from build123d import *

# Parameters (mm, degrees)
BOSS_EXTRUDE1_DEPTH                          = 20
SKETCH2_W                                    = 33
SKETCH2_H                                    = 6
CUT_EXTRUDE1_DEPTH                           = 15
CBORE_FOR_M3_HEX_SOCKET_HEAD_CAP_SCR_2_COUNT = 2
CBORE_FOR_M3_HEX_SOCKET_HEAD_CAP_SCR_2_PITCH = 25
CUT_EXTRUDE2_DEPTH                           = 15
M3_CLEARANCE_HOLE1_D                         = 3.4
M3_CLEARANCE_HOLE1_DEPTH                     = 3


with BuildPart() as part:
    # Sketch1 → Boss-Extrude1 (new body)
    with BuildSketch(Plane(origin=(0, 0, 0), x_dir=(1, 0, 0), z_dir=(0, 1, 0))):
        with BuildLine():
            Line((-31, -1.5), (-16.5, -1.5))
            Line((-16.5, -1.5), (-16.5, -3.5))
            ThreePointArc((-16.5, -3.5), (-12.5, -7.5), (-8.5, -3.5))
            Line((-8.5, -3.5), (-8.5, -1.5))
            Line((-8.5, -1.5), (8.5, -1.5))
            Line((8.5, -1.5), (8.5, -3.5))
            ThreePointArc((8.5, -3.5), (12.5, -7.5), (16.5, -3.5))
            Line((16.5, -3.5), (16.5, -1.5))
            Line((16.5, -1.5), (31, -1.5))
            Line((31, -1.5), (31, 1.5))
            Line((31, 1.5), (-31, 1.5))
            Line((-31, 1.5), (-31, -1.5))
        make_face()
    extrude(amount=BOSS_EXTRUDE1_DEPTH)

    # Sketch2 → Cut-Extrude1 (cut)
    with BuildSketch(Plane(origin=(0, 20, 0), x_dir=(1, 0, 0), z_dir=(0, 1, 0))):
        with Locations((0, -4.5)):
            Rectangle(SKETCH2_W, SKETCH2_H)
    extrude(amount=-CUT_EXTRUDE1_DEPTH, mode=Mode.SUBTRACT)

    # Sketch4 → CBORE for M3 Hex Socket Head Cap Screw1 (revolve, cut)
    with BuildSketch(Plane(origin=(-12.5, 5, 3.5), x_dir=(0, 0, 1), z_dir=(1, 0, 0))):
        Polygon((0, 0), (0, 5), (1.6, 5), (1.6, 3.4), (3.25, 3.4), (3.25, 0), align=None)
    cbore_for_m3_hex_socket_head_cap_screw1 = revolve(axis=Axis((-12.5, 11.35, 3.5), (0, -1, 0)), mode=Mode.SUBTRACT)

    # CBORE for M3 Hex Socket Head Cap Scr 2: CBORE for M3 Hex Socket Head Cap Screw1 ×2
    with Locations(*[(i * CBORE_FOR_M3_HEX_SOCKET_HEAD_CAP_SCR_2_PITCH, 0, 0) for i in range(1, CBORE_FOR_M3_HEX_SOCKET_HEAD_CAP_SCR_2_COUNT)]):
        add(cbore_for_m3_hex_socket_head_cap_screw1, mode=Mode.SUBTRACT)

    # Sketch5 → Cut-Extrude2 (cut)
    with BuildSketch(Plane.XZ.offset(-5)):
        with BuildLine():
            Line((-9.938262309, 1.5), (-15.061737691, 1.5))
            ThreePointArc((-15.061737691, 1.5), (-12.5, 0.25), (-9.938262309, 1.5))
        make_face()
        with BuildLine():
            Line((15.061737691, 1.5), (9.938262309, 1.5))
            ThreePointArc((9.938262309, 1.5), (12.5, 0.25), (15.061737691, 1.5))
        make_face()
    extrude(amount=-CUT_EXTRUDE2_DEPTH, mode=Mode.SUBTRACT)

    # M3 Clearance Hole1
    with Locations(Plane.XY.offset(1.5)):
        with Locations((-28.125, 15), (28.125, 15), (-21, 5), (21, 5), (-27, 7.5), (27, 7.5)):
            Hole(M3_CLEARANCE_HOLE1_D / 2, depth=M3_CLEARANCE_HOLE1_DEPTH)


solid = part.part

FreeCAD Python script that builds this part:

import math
import FreeCAD as App
import Part
import Sketcher

V = App.Vector
Q = App.Units.Quantity

doc = App.newDocument("Part")
body = doc.addObject("PartDesign::Body", "Body")

sketch1 = body.newObject("Sketcher::SketchObject", "Sketch")
sketch1.AttachmentSupport = (doc.getObject("XZ_Plane"), [""])
sketch1.MapMode = "FlatFace"
sketch1.addGeometry([
    Part.LineSegment(V(-31, 1.5, 0), V(-16.5, 1.5, 0)),
    Part.LineSegment(V(-16.5, 1.5, 0), V(-16.5, 3.5, 0)),
    Part.ArcOfCircle(Part.Circle(V(-12.5, 3.5, 0), V(0, 0, 1), 4), math.radians(0), math.radians(180)),
    Part.LineSegment(V(-8.5, 3.5, 0), V(-8.5, 1.5, 0)),
    Part.LineSegment(V(-8.5, 1.5, 0), V(8.5, 1.5, 0)),
    Part.LineSegment(V(8.5, 1.5, 0), V(8.5, 3.5, 0)),
    Part.ArcOfCircle(Part.Circle(V(12.5, 3.5, 0), V(0, 0, 1), 4), math.radians(0), math.radians(180)),
    Part.LineSegment(V(16.5, 3.5, 0), V(16.5, 1.5, 0)),
    Part.LineSegment(V(16.5, 1.5, 0), V(31, 1.5, 0)),
    Part.LineSegment(V(31, 1.5, 0), V(31, -1.5, 0)),
    Part.LineSegment(V(31, -1.5, 0), V(-31, -1.5, 0)),
    Part.LineSegment(V(-31, -1.5, 0), V(-31, 1.5, 0)),
], False)
sketch1.addConstraint([
    Sketcher.Constraint("Coincident", 0, 2, 1, 1),
    Sketcher.Constraint("Tangent", 1, 2, 2, 2),
    Sketcher.Constraint("Tangent", 2, 1, 3, 1),
    Sketcher.Constraint("Coincident", 3, 2, 4, 1),
    Sketcher.Constraint("Coincident", 4, 2, 5, 1),
    Sketcher.Constraint("Tangent", 5, 2, 6, 2),
    Sketcher.Constraint("Tangent", 6, 1, 7, 1),
    Sketcher.Constraint("Coincident", 7, 2, 8, 1),
    Sketcher.Constraint("Coincident", 8, 2, 9, 1),
    Sketcher.Constraint("Coincident", 9, 2, 10, 1),
    Sketcher.Constraint("Coincident", 10, 2, 11, 1),
    Sketcher.Constraint("Coincident", 11, 2, 0, 1),
    Sketcher.Constraint("Horizontal", 0),
    Sketcher.Constraint("Vertical", 1),
    Sketcher.Constraint("Vertical", 3),
    Sketcher.Constraint("Horizontal", 4),
    Sketcher.Constraint("Vertical", 5),
    Sketcher.Constraint("Vertical", 7),
    Sketcher.Constraint("Horizontal", 8),
    Sketcher.Constraint("Vertical", 9),
    Sketcher.Constraint("Horizontal", 10),
    Sketcher.Constraint("Vertical", 11),
    Sketcher.Constraint("Equal", 2, 6),
    Sketcher.Constraint("Symmetric", 8, 2, 10, 2, -1, 1),
    Sketcher.Constraint("Symmetric", 2, 3, 6, 3, -2),
    Sketcher.Constraint("Horizontal", 0, 2, 3, 2),
    Sketcher.Constraint("Horizontal", 4, 2, 7, 2),
    Sketcher.Constraint("Radius", 2, Q("4 mm")),
    Sketcher.Constraint("DistanceX", 4, 1, 4, 2, Q("17 mm")),
    Sketcher.Constraint("DistanceX", 10, 2, 10, 1, Q("62 mm")),
    Sketcher.Constraint("DistanceY", 1, 1, 1, 2, Q("2 mm")),
    Sketcher.Constraint("DistanceY", 9, 2, 9, 1, Q("3 mm")),
])
pad1 = body.newObject("PartDesign::Pad", "Pad")
pad1.Profile = sketch1
pad1.Length = 20
pad1.Reversed = True

sketch2 = body.newObject("Sketcher::SketchObject", "Sketch001")
sketch2.AttachmentSupport = (doc.getObject("XZ_Plane"), [""])
sketch2.MapMode = "FlatFace"
sketch2.AttachmentOffset = App.Placement(V(0, 0, -20), App.Rotation())
sketch2.addGeometry([
    Part.LineSegment(V(-16, 2, 0), V(-16, 8, 0)),
    Part.LineSegment(V(-16, 8, 0), V(16, 8, 0)),
    Part.LineSegment(V(16, 8, 0), V(16, 2, 0)),
    Part.LineSegment(V(16, 2, 0), V(-16, 2, 0)),
], False)
sketch2.addConstraint([
    Sketcher.Constraint("Coincident", 0, 2, 1, 1),
    Sketcher.Constraint("Coincident", 1, 2, 2, 1),
    Sketcher.Constraint("Coincident", 2, 2, 3, 1),
    Sketcher.Constraint("Coincident", 3, 2, 0, 1),
    Sketcher.Constraint("Vertical", 0),
    Sketcher.Constraint("Horizontal", 1),
    Sketcher.Constraint("Vertical", 2),
    Sketcher.Constraint("Horizontal", 3),
    Sketcher.Constraint("DistanceX", 1, 1, 1, 2, Q("33 mm")),
    Sketcher.Constraint("DistanceY", 0, 1, 0, 2, Q("6 mm")),
    Sketcher.Constraint("DistanceX", 0, 2, -1, 1, Q("16.5 mm")),
    Sketcher.Constraint("DistanceY", -1, 1, 0, 2, Q("7.5 mm")),
])
pocket1 = body.newObject("PartDesign::Pocket", "Pocket")
pocket1.Profile = sketch2
pocket1.Length = 15
pocket1.Reversed = True

sketch3 = body.newObject("Sketcher::SketchObject", "Sketch002")
sketch3.AttachmentSupport = (doc.getObject("YZ_Plane"), [""])
sketch3.MapMode = "FlatFace"
sketch3.AttachmentOffset = App.Placement(V(0, 0, -12.5), App.Rotation())
sketch3.addGeometry([
    Part.LineSegment(V(0, 3.5, 0), V(5, 3.5, 0)),
    Part.LineSegment(V(5, 3.5, 0), V(5, 6.8, 0)),
    Part.LineSegment(V(5, 6.8, 0), V(1.6, 6.8, 0)),
    Part.LineSegment(V(1.6, 6.8, 0), V(1.6, 5.1, 0)),
    Part.LineSegment(V(1.6, 5.1, 0), V(0, 5.1, 0)),
    Part.LineSegment(V(0, 5.1, 0), V(0, 3.5, 0)),
], False)
sketch3.addGeometry(Part.LineSegment(V(5, 3.5, 0), V(0, 3.5, 0)), True)
sketch3.addConstraint([
    Sketcher.Constraint("Coincident", 0, 2, 1, 1),
    Sketcher.Constraint("Coincident", 1, 2, 2, 1),
    Sketcher.Constraint("Coincident", 2, 2, 3, 1),
    Sketcher.Constraint("Coincident", 3, 2, 4, 1),
    Sketcher.Constraint("Coincident", 4, 2, 5, 1),
    Sketcher.Constraint("Coincident", 5, 2, 0, 1),
    Sketcher.Constraint("Horizontal", 0),
    Sketcher.Constraint("Vertical", 1),
    Sketcher.Constraint("Horizontal", 2),
    Sketcher.Constraint("Vertical", 3),
    Sketcher.Constraint("Horizontal", 4),
    Sketcher.Constraint("Vertical", 5),
    Sketcher.Constraint("Horizontal", 6),
    Sketcher.Constraint("Coincident", 6, 1, 0, 2),
    Sketcher.Constraint("PointOnObject", 4, 2, -2),
    Sketcher.Constraint("PointOnObject", 6, 2, -2),
    Sketcher.Constraint("Equal", 4, 5),
    Sketcher.Constraint("DistanceX", 0, 1, 0, 2, Q("5 mm")),
    Sketcher.Constraint("DistanceX", 2, 2, 2, 1, Q("3.4 mm")),
    Sketcher.Constraint("DistanceY", 1, 1, 1, 2, Q("3.25 mm")),
    Sketcher.Constraint("DistanceY", -1, 1, 0, 2, Q("3.5 mm")),
])
groove = body.newObject("PartDesign::Groove", "Groove")
groove.Profile = sketch3
groove.ReferenceAxis = (sketch3, ["Axis0"])
groove.Angle = 360
doc.recompute()

linearpattern = body.newObject("PartDesign::LinearPattern", "LinearPattern")
linearpattern.Originals = [groove]
linearpattern.Direction = (doc.getObject("X_Axis"), [""])
linearpattern.Mode = "offset"
linearpattern.Offset = 25
linearpattern.Occurrences = 2
body.Tip = linearpattern

sketch4 = body.newObject("Sketcher::SketchObject", "Sketch003")
sketch4.AttachmentSupport = (doc.getObject("XZ_Plane"), [""])
sketch4.MapMode = "FlatFace"
sketch4.AttachmentOffset = App.Placement(V(0, 0, -5), App.Rotation())
sketch4.addGeometry([
    Part.LineSegment(V(-9.9, 1.5, 0), V(-15.1, 1.5, 0)),
    Part.ArcOfCircle(Part.Circle(V(-12.5, 3.5, 0), V(0, 0, 1), 3.2), math.radians(-142), math.radians(-38)),
    Part.LineSegment(V(15.1, 1.5, 0), V(9.9, 1.5, 0)),
    Part.ArcOfCircle(Part.Circle(V(12.5, 3.5, 0), V(0, 0, 1), 3.2), math.radians(-142), math.radians(-38)),
], False)
sketch4.addConstraint([
    Sketcher.Constraint("Coincident", 0, 1, 1, 2),
    Sketcher.Constraint("Coincident", 1, 1, 0, 2),
    Sketcher.Constraint("Coincident", 2, 1, 3, 2),
    Sketcher.Constraint("Coincident", 3, 1, 2, 2),
    Sketcher.Constraint("Horizontal", 0),
    Sketcher.Constraint("Horizontal", 2),
    Sketcher.Constraint("Equal", 1, 3),
    Sketcher.Constraint("Symmetric", 1, 3, 3, 3, -2),
    Sketcher.Constraint("Horizontal", 1, 1, 2, 1),
    Sketcher.Constraint("Radius", 1, Q("3.25 mm")),
    Sketcher.Constraint("DistanceX", 1, 3, 3, 3, Q("25 mm")),
    Sketcher.Constraint("DistanceY", 0, 1, 1, 3, Q("2 mm")),
    Sketcher.Constraint("DistanceY", -1, 1, 1, 3, Q("3.5 mm")),
])
pocket2 = body.newObject("PartDesign::Pocket", "Pocket001")
pocket2.Profile = sketch4
pocket2.Length = 15

sketch5 = body.newObject("Sketcher::SketchObject", "Sketch004")
sketch5.AttachmentSupport = (doc.getObject("XY_Plane"), [""])
sketch5.MapMode = "FlatFace"
sketch5.AttachmentOffset = App.Placement(V(0, 0, 1.5), App.Rotation())
sketch5.addGeometry([
    Part.Circle(V(-28.1, 15, 0), V(0, 0, 1), 1.7),
    Part.Circle(V(28.1, 15, 0), V(0, 0, 1), 1.7),
    Part.Circle(V(-21, 5, 0), V(0, 0, 1), 1.7),
    Part.Circle(V(21, 5, 0), V(0, 0, 1), 1.7),
    Part.Circle(V(-27, 7.5, 0), V(0, 0, 1), 1.7),
    Part.Circle(V(27, 7.5, 0), V(0, 0, 1), 1.7),
], False)
sketch5.addConstraint([
    Sketcher.Constraint("Equal", 0, 1),
    Sketcher.Constraint("Equal", 1, 2),
    Sketcher.Constraint("Equal", 2, 3),
    Sketcher.Constraint("Equal", 3, 4),
    Sketcher.Constraint("Equal", 4, 5),
    Sketcher.Constraint("Symmetric", 0, 3, 1, 3, -2),
    Sketcher.Constraint("Symmetric", 2, 3, 3, 3, -2),
    Sketcher.Constraint("Symmetric", 4, 3, 5, 3, -2),
    Sketcher.Constraint("Diameter", 0, Q("3.4 mm")),
    Sketcher.Constraint("DistanceY", -1, 1, 0, 3, Q("15 mm")),
    Sketcher.Constraint("DistanceX", 2, 3, -1, 1, Q("21 mm")),
    Sketcher.Constraint("DistanceY", -1, 1, 2, 3, Q("5 mm")),
    Sketcher.Constraint("DistanceX", 4, 3, -1, 1, Q("27 mm")),
    Sketcher.Constraint("DistanceY", -1, 1, 4, 3, Q("7.5 mm")),
    Sketcher.Constraint("DistanceX", 0, 3, 1, 3, Q("56.25 mm")),
])
doc.recompute()
hole = body.newObject("PartDesign::Hole", "Hole")
hole.Profile = sketch5
hole.ThreadType = "None"
hole.Diameter = 3.4
hole.DepthType = "Dimension"
hole.Depth = 3
hole.DrillPoint = "Flat"

doc.recompute()
